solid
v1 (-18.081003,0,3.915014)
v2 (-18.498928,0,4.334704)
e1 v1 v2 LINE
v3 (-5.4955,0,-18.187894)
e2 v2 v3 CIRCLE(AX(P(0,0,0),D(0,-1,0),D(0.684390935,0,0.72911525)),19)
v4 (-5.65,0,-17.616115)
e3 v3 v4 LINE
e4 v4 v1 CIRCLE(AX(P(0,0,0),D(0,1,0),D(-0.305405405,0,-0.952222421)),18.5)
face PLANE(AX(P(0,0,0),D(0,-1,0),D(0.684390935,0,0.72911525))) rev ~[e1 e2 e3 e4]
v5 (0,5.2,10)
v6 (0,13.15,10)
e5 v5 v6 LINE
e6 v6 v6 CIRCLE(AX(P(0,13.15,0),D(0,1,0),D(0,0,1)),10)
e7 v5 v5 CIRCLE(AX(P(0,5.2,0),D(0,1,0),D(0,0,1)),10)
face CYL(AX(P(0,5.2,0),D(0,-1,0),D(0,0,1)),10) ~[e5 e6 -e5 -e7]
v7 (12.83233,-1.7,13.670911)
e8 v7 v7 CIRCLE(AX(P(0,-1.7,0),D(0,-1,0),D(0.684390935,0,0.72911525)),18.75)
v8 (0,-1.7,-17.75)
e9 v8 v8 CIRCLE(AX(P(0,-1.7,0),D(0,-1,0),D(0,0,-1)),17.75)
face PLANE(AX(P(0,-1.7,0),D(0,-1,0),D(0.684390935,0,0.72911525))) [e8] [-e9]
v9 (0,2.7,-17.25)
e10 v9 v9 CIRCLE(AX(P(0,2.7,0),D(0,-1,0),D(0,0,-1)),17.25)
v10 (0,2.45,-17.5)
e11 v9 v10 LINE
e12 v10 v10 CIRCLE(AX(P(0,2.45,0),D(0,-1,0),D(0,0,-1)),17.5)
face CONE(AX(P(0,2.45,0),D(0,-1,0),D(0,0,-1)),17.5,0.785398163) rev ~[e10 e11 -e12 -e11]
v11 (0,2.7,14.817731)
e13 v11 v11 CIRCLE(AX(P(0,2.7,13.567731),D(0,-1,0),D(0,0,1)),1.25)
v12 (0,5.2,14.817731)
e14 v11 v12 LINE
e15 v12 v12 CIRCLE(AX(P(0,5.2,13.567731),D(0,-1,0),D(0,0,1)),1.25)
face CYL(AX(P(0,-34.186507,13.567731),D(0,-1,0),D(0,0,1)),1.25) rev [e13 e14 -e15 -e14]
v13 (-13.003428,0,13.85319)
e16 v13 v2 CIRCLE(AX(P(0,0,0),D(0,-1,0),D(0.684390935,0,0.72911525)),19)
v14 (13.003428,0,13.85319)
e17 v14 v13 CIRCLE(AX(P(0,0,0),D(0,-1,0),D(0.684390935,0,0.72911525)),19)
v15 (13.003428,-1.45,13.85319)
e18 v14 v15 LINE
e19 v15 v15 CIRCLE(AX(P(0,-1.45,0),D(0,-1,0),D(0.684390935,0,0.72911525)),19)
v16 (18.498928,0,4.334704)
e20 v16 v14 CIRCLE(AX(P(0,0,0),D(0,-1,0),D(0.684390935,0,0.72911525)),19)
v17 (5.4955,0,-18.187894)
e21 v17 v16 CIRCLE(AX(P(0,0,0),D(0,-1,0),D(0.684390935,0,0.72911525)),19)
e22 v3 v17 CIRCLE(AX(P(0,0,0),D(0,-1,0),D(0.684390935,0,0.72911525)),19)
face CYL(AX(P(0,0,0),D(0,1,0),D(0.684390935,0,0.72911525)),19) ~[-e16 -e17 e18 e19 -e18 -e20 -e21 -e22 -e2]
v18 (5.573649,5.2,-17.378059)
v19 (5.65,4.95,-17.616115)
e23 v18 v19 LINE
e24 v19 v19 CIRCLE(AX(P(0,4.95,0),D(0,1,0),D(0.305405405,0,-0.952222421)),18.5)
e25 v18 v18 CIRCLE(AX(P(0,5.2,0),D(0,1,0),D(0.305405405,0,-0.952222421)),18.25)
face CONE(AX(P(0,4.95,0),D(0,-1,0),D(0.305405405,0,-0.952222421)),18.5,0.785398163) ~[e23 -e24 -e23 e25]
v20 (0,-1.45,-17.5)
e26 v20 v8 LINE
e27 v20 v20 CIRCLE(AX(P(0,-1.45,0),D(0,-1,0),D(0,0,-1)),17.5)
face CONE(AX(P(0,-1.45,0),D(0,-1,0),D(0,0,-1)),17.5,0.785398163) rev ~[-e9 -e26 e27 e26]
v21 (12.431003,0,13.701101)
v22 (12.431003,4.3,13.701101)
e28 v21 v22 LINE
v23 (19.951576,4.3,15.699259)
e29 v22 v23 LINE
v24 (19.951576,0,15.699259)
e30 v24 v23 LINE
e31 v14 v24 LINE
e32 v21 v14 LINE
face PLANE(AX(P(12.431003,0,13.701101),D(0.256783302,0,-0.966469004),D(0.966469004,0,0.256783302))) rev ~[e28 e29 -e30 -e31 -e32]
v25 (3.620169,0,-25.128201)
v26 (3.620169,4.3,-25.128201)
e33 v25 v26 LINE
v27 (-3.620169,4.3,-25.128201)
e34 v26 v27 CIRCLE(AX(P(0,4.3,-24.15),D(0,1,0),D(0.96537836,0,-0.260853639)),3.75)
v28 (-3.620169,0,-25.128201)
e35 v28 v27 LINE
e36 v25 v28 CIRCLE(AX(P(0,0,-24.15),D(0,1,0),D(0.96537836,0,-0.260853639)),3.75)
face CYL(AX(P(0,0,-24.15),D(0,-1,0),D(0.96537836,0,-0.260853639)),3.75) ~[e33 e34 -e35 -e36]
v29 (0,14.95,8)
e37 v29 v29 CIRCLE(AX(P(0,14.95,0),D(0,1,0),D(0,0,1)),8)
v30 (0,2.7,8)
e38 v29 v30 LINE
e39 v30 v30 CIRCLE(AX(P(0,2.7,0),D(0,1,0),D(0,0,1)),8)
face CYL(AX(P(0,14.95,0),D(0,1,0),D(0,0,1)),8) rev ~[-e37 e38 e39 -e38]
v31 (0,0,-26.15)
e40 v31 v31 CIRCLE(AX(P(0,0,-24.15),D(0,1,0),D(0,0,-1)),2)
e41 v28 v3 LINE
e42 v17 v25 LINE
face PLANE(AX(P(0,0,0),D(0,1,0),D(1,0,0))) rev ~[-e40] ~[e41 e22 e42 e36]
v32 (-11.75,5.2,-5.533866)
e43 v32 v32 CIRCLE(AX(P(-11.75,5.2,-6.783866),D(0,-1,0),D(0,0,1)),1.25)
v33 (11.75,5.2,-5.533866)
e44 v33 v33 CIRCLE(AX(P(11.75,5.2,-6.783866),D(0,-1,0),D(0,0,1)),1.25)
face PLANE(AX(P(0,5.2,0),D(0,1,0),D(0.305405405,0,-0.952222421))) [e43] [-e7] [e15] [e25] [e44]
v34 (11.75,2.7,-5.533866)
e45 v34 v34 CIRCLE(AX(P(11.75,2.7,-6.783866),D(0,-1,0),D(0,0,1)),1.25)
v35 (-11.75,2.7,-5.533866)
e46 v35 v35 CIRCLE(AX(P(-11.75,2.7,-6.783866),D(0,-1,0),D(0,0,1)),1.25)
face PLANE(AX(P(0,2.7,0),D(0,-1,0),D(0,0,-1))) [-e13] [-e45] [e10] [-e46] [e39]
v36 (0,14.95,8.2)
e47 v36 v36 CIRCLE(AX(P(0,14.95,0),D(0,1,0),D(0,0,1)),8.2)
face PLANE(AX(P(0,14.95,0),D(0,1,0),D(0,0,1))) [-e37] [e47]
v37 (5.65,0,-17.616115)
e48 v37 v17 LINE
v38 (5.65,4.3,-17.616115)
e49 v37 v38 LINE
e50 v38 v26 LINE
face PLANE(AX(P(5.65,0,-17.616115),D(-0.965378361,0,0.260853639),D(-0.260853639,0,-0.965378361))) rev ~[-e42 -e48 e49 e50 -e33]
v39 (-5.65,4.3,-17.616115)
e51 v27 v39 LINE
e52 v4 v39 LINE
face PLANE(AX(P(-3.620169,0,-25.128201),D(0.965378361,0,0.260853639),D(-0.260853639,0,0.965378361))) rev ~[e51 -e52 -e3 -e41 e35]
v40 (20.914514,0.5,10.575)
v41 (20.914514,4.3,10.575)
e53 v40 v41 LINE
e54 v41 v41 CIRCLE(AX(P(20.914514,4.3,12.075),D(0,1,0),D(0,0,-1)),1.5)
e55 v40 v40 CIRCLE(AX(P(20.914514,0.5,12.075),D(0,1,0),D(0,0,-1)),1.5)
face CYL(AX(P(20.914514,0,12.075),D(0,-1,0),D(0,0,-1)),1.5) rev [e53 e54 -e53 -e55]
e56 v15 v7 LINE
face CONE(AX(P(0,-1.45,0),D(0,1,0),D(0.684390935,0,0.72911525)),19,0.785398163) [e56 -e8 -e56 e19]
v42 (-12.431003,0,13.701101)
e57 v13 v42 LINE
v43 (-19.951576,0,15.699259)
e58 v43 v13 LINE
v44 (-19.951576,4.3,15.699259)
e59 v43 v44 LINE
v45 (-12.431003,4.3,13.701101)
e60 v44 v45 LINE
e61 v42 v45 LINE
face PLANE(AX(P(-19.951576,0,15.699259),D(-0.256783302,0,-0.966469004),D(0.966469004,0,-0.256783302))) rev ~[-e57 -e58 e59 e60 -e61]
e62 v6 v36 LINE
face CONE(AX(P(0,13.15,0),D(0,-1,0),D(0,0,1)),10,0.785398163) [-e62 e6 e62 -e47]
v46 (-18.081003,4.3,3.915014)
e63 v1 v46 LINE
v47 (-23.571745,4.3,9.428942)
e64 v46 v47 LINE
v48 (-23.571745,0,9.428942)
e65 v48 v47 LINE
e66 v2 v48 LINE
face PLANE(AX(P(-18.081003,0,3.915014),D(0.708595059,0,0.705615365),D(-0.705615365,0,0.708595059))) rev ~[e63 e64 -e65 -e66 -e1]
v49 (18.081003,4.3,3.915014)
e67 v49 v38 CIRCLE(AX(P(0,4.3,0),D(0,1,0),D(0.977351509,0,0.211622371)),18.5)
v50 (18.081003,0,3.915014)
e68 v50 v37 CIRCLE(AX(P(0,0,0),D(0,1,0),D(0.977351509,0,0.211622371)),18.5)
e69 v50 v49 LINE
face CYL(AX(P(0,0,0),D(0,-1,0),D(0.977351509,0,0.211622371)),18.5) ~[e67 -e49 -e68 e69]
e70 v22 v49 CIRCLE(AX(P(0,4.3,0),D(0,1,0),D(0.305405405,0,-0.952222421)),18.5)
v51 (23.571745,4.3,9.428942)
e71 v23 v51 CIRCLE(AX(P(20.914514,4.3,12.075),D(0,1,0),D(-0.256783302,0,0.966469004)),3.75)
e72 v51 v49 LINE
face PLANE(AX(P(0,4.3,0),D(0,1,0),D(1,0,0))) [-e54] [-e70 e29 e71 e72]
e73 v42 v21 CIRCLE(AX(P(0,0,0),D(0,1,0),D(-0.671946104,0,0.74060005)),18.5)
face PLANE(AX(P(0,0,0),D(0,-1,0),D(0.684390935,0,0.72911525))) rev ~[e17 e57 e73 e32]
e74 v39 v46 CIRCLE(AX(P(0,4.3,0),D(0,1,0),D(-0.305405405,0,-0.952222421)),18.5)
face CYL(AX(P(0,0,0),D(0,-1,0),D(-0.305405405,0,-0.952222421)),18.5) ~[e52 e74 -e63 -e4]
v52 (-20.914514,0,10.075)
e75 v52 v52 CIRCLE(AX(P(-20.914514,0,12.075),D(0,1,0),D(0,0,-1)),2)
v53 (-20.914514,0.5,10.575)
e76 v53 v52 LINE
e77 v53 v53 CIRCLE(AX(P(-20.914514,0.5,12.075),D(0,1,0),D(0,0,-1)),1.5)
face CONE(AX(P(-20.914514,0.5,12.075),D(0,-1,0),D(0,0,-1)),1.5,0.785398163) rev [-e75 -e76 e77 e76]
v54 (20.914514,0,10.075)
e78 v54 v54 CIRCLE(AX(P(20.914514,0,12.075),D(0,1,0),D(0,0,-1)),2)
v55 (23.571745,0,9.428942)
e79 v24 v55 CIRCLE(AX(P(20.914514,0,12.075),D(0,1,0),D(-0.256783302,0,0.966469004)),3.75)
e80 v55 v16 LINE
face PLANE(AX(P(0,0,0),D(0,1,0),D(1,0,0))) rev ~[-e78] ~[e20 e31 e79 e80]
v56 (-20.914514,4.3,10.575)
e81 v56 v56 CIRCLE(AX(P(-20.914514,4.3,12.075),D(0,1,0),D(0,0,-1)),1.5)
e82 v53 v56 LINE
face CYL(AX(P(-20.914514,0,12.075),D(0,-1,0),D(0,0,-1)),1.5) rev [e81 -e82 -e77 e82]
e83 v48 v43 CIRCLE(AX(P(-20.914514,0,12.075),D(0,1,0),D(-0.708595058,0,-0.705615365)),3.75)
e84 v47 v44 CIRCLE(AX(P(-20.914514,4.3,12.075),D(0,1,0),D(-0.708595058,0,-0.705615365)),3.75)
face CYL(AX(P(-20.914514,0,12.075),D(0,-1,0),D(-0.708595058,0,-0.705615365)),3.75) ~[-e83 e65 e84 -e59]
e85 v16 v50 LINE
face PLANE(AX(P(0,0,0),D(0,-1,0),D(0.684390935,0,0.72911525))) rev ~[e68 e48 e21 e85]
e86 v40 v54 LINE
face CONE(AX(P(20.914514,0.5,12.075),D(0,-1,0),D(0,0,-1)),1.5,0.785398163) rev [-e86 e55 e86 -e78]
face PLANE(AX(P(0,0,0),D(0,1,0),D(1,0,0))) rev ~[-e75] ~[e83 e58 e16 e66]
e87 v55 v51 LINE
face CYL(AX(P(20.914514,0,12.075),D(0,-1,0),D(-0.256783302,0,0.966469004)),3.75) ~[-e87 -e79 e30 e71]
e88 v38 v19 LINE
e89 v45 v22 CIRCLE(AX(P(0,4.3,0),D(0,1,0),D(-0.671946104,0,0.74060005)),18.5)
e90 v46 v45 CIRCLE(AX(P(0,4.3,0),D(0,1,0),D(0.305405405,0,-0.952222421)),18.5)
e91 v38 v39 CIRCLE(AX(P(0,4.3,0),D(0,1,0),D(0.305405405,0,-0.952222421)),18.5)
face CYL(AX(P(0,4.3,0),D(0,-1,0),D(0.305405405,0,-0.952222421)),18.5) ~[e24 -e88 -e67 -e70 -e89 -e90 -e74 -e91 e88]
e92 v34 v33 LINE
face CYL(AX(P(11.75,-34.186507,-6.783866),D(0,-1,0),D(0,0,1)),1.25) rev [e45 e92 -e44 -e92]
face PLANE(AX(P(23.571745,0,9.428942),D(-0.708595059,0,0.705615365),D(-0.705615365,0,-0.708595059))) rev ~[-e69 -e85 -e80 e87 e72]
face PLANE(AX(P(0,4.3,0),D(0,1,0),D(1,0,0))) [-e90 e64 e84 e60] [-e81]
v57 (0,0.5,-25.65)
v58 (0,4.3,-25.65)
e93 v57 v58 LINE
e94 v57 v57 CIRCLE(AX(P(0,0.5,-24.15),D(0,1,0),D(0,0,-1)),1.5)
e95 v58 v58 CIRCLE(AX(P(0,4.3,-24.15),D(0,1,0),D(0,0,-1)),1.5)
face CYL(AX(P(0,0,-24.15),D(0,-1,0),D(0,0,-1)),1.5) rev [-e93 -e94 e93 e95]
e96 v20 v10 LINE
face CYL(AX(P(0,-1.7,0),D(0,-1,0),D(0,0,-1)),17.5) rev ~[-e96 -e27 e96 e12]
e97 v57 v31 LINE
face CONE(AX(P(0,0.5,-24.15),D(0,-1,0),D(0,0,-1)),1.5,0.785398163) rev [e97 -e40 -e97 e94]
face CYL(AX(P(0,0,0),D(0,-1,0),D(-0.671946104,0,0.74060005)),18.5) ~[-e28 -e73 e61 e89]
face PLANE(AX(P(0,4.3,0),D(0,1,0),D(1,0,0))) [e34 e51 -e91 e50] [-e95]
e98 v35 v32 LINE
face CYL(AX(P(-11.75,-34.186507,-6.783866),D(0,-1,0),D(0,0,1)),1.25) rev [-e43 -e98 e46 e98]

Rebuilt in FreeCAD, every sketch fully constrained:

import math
import FreeCAD as App
import Part
import Sketcher
Q = App.Units.Quantity


def edges_at(feature, points):
    """Names of the edges that pass closest to the given points."""
    edges = feature.Shape.Edges
    near = lambda p: min(range(len(edges)), key=lambda i: edges[i].distToShape(Part.Vertex(*p))[0])
    return sorted({f"Edge{near(p) + 1}" for p in points})

doc = App.newDocument("Part")
body = doc.addObject("PartDesign::Body", "Body")

sketch1 = body.newObject("Sketcher::SketchObject", "Sketch")
sketch1.AttachmentSupport = (doc.getObject("XZ_Plane"), [""])
sketch1.MapMode = "FlatFace"
sketch1.addGeometry(Part.LineSegment(App.Vector(-3.6, -25.1, 0), App.Vector(-5.7, -17.6, 0)), False)
sketch1.addGeometry(Part.ArcOfCircle(Part.Circle(App.Vector(0, 0, 0), App.Vector(0, 0, 1), 18.5), math.radians(168), math.radians(252)), False)
sketch1.addGeometry(Part.LineSegment(App.Vector(-18.1, 3.9, 0), App.Vector(-23.6, 9.4, 0)), False)
sketch1.addGeometry(Part.ArcOfCircle(Part.Circle(App.Vector(-20.9, 12.1, 0), App.Vector(0, 0, 1), 3.7), math.radians(75), math.radians(225)), False)
sketch1.addGeometry(Part.LineSegment(App.Vector(-20, 15.7, 0), App.Vector(-12.4, 13.7, 0)), False)
sketch1.addGeometry(Part.ArcOfCircle(Part.Circle(App.Vector(0, 0, 0), App.Vector(0, 0, 1), 18.5), math.radians(48), math.radians(132)), False)
sketch1.addGeometry(Part.LineSegment(App.Vector(12.4, 13.7, 0), App.Vector(20, 15.7, 0)), False)
sketch1.addGeometry(Part.ArcOfCircle(Part.Circle(App.Vector(20.9, 12.1, 0), App.Vector(0, 0, 1), 3.7), math.radians(-45), math.radians(105)), False)
sketch1.addGeometry(Part.LineSegment(App.Vector(23.6, 9.4, 0), App.Vector(18.1, 3.9, 0)), False)
sketch1.addGeometry(Part.ArcOfCircle(Part.Circle(App.Vector(0, 0, 0), App.Vector(0, 0, 1), 18.5), math.radians(-72), math.radians(12)), False)
sketch1.addGeometry(Part.LineSegment(App.Vector(5.7, -17.6, 0), App.Vector(3.6, -25.1, 0)), False)
sketch1.addGeometry(Part.ArcOfCircle(Part.Circle(App.Vector(0, -24.1, 0), App.Vector(0, 0, 1), 3.8), math.radians(-165), math.radians(-15)), False)
sketch1.addGeometry(Part.Circle(App.Vector(-20.9, 12.1, 0), App.Vector(0, 0, 1), 1.5), False)
sketch1.addGeometry(Part.Circle(App.Vector(20.9, 12.1, 0), App.Vector(0, 0, 1), 1.5), False)
sketch1.addGeometry(Part.Circle(App.Vector(0, -24.1, 0), App.Vector(0, 0, 1), 1.5), False)
sketch1.addConstraint(Sketcher.Constraint("Coincident", 0, 2, 1, 2))
sketch1.addConstraint(Sketcher.Constraint("Coincident", 1, 1, 2, 1))
sketch1.addConstraint(Sketcher.Constraint("Tangent", 2, 2, 3, 2))
sketch1.addConstraint(Sketcher.Constraint("Tangent", 3, 1, 4, 1))
sketch1.addConstraint(Sketcher.Constraint("Coincident", 4, 2, 5, 2))
sketch1.addConstraint(Sketcher.Constraint("Coincident", 5, 1, 6, 1))
sketch1.addConstraint(Sketcher.Constraint("Tangent", 6, 2, 7, 2))
sketch1.addConstraint(Sketcher.Constraint("Tangent", 7, 1, 8, 1))
sketch1.addConstraint(Sketcher.Constraint("Coincident", 8, 2, 9, 2))
sketch1.addConstraint(Sketcher.Constraint("Coincident", 9, 1, 10, 1))
sketch1.addConstraint(Sketcher.Constraint("Tangent", 10, 2, 11, 2))
sketch1.addConstraint(Sketcher.Constraint("Tangent", 11, 1, 0, 1))
sketch1.addConstraint(Sketcher.Constraint("Coincident", 1, 3, -1, 1))
sketch1.addConstraint(Sketcher.Constraint("Coincident", 5, 3, -1, 1))
sketch1.addConstraint(Sketcher.Constraint("Coincident", 9, 3, -1, 1))
sketch1.addConstraint(Sketcher.Constraint("Coincident", 12, 3, 3, 3))
sketch1.addConstraint(Sketcher.Constraint("Coincident", 13, 3, 7, 3))
sketch1.addConstraint(Sketcher.Constraint("Coincident", 14, 3, 11, 3))
sketch1.addConstraint(Sketcher.Constraint("Equal", 1, 5))
sketch1.addConstraint(Sketcher.Constraint("Equal", 3, 7))
sketch1.addConstraint(Sketcher.Constraint("Equal", 5, 9))
sketch1.addConstraint(Sketcher.Constraint("Equal", 7, 11))
sketch1.addConstraint(Sketcher.Constraint("Equal", 12, 13))
sketch1.addConstraint(Sketcher.Constraint("Equal", 13, 14))
sketch1.addConstraint(Sketcher.Constraint("Symmetric", 3, 3, 7, 3, -2))
sketch1.addConstraint(Sketcher.Constraint("Symmetric", 10, 2, 11, 1, -2))
sketch1.addConstraint(Sketcher.Constraint("Horizontal", 4, 2, 5, 1))
sketch1.addConstraint(Sketcher.Constraint("Horizontal", 2, 2, 7, 1))
sketch1.addConstraint(Sketcher.Constraint("Equal", 0, 2))
sketch1.addConstraint(Sketcher.Constraint("Equal", 2, 4))
sketch1.addConstraint(Sketcher.Constraint("Diameter", 12, Q("3 mm")))
sketch1.addConstraint(Sketcher.Constraint("Radius", 1, Q("18.5 mm")))
sketch1.addConstraint(Sketcher.Constraint("Radius", 3, Q("3.75 mm")))
sketch1.addConstraint(Sketcher.Constraint("DistanceX", 0, 2, 9, 1, Q("11.3 mm")))
sketch1.addConstraint(Sketcher.Constraint("DistanceY", 11, 3, -1, 1, Q("24.15 mm")))
sketch1.addConstraint(Sketcher.Constraint("DistanceX", 1, 1, 4, 2, Q("5.65 mm")))
sketch1.addConstraint(Sketcher.Constraint("DistanceY", -1, 1, 3, 3, Q("12.075 mm")))
pad1 = body.newObject("PartDesign::Pad", "Pad")
pad1.Profile = sketch1
pad1.Length = 4.3
pad1.Reversed = True

sketch2 = body.newObject("Sketcher::SketchObject", "Sketch001")
sketch2.AttachmentSupport = (doc.getObject("XZ_Plane"), [""])
sketch2.MapMode = "FlatFace"
sketch2.AttachmentOffset = App.Placement(App.Vector(0, 0, -4.3), App.Rotation())
sketch2.addGeometry(Part.Circle(App.Vector(0, 0, 0), App.Vector(0, 0, 1), 18), False)
sketch2.addConstraint(Sketcher.Constraint("Coincident", 0, 3, -1, 1))
sketch2.addConstraint(Sketcher.Constraint("Diameter", 0, Q("37 mm")))
pad2 = body.newObject("PartDesign::Pad", "Pad001")
pad2.Profile = sketch2
pad2.Length = 0.9
pad2.Reversed = True

sketch3 = body.newObject("Sketcher::SketchObject", "Sketch002")
sketch3.AttachmentSupport = (doc.getObject("XZ_Plane"), [""])
sketch3.MapMode = "FlatFace"
sketch3.AttachmentOffset = App.Placement(App.Vector(0, 0, -4.3), App.Rotation())
sketch3.addGeometry(Part.Circle(App.Vector(-11.8, -6.8, 0), App.Vector(0, 0, 1), 1.2), False)
sketch3.addGeometry(Part.Circle(App.Vector(11.8, -6.8, 0), App.Vector(0, 0, 1), 1.2), False)
sketch3.addGeometry(Part.Circle(App.Vector(0, 13.6, 0), App.Vector(0, 0, 1), 1.2), False)
sketch3.addConstraint(Sketcher.Constraint("Equal", 0, 1))
sketch3.addConstraint(Sketcher.Constraint("Equal", 1, 2))
sketch3.addConstraint(Sketcher.Constraint("Symmetric", 0, 3, 1, 3, -2))
sketch3.addConstraint(Sketcher.Constraint("PointOnObject", 2, 3, -2))
sketch3.addConstraint(Sketcher.Constraint("Diameter", 0, Q("2.5 mm")))
sketch3.addConstraint(Sketcher.Constraint("DistanceX", 0, 3, 1, 3, Q("23.5 mm")))
sketch3.addConstraint(Sketcher.Constraint("DistanceY", -1, 1, 2, 3, Q("13.567731 mm")))
sketch3.addConstraint(Sketcher.Constraint("DistanceY", 0, 3, -1, 1, Q("6.783866 mm")))
pocket1 = body.newObject("PartDesign::Pocket", "Pocket")
pocket1.Profile = sketch3
pocket1.Type = "ThroughAll"
pocket1.Midplane = True

sketch4 = body.newObject("Sketcher::SketchObject", "Sketch003")
sketch4.AttachmentSupport = (doc.getObject("XZ_Plane"), [""])
sketch4.MapMode = "FlatFace"
sketch4.AttachmentOffset = App.Placement(App.Vector(0, 0, -5.2), App.Rotation())
sketch4.addGeometry(Part.Circle(App.Vector(0, 0, 0), App.Vector(0, 0, 1), 10), False)
sketch4.addConstraint(Sketcher.Constraint("Coincident", 0, 3, -1, 1))
sketch4.addConstraint(Sketcher.Constraint("Diameter", 0, Q("20 mm")))
pad3 = body.newObject("PartDesign::Pad", "Pad002")
pad3.Profile = sketch4
pad3.Length = 9.75
pad3.Reversed = True

sketch5 = body.newObject("Sketcher::SketchObject", "Sketch004")
sketch5.AttachmentSupport = (doc.getObject("XZ_Plane"), [""])
sketch5.MapMode = "FlatFace"
sketch5.AttachmentOffset = App.Placement(App.Vector(0, 0, -14.95), App.Rotation())
sketch5.addGeometry(Part.Circle(App.Vector(0, 0, 0), App.Vector(0, 0, 1), 8), False)
sketch5.addConstraint(Sketcher.Constraint("Coincident", 0, 3, -1, 1))
sketch5.addConstraint(Sketcher.Constraint("Diameter", 0, Q("16 mm")))
pocket2 = body.newObject("PartDesign::Pocket", "Pocket001")
pocket2.Profile = sketch5
pocket2.Type = "ThroughAll"
pocket2.Reversed = True

sketch6 = body.newObject("Sketcher::SketchObject", "Sketch005")
sketch6.AttachmentSupport = (doc.getObject("XZ_Plane"), [""])
sketch6.MapMode = "FlatFace"
sketch6.addGeometry(Part.Circle(App.Vector(0, 0, 0), App.Vector(0, 0, 1), 19), False)
sketch6.addConstraint(Sketcher.Constraint("Coincident", 0, 3, -1, 1))
sketch6.addConstraint(Sketcher.Constraint("Diameter", 0, Q("38 mm")))
pad4 = body.newObject("PartDesign::Pad", "Pad003")
pad4.Profile = sketch6
pad4.Length = 1.7

sketch7 = body.newObject("Sketcher::SketchObject", "Sketch006")
sketch7.AttachmentSupport = (doc.getObject("XZ_Plane"), [""])
sketch7.MapMode = "FlatFace"
sketch7.AttachmentOffset = App.Placement(App.Vector(0, 0, 1.7), App.Rotation())
sketch7.addGeometry(Part.Circle(App.Vector(0, 0, 0), App.Vector(0, 0, 1), 18), False)
sketch7.addConstraint(Sketcher.Constraint("Coincident", 0, 3, -1, 1))
sketch7.addConstraint(Sketcher.Constraint("Diameter", 0, Q("35 mm")))
pocket3 = body.newObject("PartDesign::Pocket", "Pocket002")
pocket3.Profile = sketch7
pocket3.Length = 4.4
doc.recompute()

chamfer = body.newObject("PartDesign::Chamfer", "Chamfer")
chamfer.Base = (pocket3, edges_at(pocket3, [(0, 14.95, -10)]))
chamfer.Size = 1.8
doc.recompute()

chamfer2 = body.newObject("PartDesign::Chamfer", "Chamfer001")
chamfer2.Base = (chamfer, edges_at(chamfer, [
    (0, -1.7, 17.5),
    (0, 2.7, 17.5),
    (-5.65, 5.2, 17.616),
    (-13.003, -1.7, -13.853),
]))
chamfer2.Size = 0.25
doc.recompute()

chamfer3 = body.newObject("PartDesign::Chamfer", "Chamfer002")
chamfer3.Base = (chamfer2, edges_at(chamfer2, [(0, 0, -22.65), (20.915, 0, 13.575), (-20.915, 0, 13.575)]))
chamfer3.Size = 0.5

doc.recompute()
